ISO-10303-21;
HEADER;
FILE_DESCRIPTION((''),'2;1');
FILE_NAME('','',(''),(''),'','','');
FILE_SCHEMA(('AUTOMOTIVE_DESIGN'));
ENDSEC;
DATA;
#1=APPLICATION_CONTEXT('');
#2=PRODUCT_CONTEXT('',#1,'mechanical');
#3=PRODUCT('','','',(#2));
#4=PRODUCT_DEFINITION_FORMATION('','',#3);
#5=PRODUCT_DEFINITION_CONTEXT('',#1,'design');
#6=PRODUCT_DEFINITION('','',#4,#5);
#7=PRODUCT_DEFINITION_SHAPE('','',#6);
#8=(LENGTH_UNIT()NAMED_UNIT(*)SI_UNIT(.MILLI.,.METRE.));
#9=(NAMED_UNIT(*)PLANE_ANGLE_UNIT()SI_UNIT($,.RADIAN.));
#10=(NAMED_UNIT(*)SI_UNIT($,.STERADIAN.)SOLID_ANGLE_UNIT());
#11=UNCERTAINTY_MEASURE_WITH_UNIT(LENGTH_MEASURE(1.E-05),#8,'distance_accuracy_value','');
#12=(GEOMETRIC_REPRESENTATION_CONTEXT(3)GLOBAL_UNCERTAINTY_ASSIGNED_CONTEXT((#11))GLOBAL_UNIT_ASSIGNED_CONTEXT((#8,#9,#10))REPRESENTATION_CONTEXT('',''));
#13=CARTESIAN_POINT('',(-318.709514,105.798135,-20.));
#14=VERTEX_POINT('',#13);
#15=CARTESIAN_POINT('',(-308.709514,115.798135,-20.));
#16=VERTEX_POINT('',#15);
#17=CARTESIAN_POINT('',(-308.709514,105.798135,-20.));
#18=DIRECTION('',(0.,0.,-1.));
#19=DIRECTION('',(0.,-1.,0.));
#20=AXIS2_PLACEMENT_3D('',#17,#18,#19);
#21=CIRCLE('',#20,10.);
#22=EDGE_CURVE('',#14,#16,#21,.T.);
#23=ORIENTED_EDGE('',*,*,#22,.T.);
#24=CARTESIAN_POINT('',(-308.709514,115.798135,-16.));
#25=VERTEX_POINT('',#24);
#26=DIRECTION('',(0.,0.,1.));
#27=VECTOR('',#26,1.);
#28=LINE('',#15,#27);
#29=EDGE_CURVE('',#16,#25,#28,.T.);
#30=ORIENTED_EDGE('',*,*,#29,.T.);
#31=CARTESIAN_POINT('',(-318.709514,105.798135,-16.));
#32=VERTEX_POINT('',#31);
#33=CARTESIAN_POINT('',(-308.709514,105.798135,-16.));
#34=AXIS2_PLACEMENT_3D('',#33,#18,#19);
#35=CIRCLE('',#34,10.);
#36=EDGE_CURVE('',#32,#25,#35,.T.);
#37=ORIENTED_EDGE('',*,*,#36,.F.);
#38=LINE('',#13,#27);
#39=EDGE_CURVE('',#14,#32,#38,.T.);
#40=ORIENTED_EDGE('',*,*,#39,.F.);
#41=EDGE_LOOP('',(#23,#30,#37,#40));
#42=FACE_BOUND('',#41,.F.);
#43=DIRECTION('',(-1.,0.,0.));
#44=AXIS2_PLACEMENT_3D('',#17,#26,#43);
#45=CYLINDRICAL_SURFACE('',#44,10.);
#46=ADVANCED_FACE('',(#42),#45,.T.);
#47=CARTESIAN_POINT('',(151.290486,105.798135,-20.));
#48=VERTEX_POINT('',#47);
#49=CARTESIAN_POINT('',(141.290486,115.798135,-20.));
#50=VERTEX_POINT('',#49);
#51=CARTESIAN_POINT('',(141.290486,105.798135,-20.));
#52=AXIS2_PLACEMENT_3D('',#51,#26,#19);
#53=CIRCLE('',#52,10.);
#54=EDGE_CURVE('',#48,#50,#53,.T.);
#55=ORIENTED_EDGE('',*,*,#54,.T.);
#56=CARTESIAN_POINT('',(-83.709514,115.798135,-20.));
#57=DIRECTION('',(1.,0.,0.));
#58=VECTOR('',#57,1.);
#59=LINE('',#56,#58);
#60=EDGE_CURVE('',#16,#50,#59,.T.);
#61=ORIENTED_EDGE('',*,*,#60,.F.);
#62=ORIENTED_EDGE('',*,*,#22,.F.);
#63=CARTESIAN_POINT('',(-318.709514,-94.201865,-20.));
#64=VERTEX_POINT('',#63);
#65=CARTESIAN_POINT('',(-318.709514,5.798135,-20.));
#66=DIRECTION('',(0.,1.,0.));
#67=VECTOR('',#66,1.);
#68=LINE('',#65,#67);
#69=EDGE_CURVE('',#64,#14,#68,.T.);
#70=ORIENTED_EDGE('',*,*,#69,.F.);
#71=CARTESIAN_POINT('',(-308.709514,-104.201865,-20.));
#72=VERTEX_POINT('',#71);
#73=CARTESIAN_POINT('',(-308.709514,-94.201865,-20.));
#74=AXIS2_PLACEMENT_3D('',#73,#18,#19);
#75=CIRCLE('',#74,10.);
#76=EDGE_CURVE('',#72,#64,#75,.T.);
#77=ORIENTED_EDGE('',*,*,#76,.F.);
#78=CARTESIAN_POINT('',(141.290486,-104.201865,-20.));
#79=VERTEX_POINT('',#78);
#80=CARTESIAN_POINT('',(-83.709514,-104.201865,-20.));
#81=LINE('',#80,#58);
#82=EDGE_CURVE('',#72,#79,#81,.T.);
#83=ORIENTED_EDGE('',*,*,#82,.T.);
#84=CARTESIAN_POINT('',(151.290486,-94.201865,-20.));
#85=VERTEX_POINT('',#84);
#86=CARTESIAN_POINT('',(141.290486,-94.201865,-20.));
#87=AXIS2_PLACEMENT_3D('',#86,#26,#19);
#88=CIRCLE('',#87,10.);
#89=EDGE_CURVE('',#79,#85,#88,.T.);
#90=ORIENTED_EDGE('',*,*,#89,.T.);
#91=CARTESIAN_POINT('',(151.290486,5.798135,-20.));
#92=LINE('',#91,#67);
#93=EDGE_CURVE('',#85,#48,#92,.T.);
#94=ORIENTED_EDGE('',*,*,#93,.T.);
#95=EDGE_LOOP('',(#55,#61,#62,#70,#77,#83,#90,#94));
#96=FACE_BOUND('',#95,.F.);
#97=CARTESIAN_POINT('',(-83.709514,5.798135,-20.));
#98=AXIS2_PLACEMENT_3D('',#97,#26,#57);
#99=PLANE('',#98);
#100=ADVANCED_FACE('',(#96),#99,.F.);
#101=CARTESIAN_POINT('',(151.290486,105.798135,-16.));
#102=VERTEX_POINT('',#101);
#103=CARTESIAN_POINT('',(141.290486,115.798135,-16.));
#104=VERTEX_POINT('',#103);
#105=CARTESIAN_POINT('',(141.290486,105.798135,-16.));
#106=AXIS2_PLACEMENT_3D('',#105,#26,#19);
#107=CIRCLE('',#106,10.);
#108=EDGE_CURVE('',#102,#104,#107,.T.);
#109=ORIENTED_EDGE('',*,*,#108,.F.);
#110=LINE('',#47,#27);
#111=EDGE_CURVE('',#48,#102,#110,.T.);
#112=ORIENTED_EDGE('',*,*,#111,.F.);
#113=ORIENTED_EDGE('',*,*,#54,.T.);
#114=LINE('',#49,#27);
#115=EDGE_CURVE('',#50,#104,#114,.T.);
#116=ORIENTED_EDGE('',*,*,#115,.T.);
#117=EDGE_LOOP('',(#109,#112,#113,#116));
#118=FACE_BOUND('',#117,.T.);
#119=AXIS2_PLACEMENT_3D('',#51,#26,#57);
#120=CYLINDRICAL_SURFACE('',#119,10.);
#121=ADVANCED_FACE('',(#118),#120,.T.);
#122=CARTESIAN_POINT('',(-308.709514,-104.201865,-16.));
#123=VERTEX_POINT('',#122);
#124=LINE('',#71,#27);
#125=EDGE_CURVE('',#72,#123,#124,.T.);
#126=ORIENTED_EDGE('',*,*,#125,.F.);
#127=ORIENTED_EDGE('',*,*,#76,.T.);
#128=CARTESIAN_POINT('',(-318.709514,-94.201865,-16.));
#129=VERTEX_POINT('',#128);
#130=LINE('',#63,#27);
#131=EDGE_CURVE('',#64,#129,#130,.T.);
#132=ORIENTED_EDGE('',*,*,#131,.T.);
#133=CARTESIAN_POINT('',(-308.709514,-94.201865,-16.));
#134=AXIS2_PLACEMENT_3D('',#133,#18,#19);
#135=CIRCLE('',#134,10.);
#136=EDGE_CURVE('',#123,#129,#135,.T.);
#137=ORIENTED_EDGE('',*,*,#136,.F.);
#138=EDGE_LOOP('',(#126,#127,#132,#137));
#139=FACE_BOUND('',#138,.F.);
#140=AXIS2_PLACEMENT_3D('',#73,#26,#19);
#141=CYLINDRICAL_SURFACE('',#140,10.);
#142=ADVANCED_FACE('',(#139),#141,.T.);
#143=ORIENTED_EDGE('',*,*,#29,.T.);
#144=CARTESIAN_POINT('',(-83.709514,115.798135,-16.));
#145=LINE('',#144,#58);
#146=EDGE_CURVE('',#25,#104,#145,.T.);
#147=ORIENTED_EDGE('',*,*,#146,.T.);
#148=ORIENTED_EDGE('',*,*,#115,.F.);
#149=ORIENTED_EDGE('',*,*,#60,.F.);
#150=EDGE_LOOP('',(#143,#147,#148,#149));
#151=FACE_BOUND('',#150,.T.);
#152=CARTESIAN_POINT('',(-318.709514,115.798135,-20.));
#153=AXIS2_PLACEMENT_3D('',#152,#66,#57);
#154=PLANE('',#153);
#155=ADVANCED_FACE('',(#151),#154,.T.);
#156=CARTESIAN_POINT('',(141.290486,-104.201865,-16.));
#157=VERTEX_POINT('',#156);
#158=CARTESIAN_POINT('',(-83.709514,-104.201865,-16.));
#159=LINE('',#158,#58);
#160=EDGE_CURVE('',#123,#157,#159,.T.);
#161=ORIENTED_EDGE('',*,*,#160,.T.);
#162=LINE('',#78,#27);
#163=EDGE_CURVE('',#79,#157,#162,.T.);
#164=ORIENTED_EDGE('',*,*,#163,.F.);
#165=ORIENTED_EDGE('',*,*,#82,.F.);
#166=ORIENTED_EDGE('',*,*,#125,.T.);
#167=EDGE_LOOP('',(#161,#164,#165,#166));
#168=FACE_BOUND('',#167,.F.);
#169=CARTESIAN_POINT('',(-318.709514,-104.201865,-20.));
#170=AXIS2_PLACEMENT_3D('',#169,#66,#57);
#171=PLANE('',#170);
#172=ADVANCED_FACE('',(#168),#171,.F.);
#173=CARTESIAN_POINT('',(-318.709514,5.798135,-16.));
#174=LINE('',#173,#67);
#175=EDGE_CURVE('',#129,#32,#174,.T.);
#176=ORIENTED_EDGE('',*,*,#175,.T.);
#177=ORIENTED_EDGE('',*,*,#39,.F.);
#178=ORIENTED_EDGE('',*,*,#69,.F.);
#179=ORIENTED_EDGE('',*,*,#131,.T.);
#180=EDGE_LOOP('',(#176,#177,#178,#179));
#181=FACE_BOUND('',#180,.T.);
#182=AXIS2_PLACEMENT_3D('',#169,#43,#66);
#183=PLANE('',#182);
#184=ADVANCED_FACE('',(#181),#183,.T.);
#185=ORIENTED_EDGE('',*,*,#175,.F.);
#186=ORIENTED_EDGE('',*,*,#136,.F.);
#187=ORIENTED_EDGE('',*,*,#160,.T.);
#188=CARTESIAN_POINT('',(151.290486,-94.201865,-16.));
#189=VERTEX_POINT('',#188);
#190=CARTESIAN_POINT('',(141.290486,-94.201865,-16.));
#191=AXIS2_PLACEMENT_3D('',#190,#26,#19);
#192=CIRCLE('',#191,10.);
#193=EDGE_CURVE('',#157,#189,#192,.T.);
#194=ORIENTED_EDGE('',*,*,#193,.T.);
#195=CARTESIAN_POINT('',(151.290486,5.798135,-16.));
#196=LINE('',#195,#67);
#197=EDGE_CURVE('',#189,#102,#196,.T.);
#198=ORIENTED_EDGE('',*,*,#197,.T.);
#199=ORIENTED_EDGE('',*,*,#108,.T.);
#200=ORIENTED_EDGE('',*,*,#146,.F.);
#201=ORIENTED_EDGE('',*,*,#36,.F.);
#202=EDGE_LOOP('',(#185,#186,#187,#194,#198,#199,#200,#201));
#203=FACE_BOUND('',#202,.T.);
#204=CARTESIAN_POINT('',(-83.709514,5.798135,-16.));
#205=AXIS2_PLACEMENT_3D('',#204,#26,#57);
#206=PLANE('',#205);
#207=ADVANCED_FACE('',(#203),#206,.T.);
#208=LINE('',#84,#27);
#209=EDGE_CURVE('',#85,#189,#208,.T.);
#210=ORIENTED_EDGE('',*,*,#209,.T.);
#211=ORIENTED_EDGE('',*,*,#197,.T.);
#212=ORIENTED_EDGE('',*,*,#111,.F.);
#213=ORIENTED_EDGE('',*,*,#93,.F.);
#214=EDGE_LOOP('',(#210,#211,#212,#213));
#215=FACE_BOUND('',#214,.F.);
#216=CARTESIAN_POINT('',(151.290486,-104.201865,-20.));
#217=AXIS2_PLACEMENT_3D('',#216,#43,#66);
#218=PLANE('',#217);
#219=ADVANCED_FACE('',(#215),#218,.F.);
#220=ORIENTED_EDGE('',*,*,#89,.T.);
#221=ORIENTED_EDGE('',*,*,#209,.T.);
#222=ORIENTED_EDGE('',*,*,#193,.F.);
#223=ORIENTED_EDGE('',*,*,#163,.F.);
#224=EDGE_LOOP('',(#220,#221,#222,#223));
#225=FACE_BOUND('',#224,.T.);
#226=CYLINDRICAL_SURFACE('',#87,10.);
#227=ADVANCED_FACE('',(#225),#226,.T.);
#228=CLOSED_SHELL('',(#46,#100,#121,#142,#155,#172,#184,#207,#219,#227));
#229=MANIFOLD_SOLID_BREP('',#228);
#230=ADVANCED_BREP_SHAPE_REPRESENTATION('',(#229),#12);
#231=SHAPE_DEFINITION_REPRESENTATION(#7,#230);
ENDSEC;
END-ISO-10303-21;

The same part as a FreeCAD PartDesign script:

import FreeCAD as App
import Part
import Sketcher
from FreeCAD import Vector


def edges_at(feature, points):
    """Names of the edges that pass closest to the given points."""
    edges = feature.Shape.Edges
    near = lambda p: min(range(len(edges)), key=lambda i: edges[i].distToShape(Part.Vertex(*p))[0])
    return sorted({f"Edge{near(p) + 1}" for p in points})


def add_polygon(sketch, points):
    """Adds a closed chain of lines whose ends are joined by coincident constraints."""
    first, n = sketch.GeometryCount, len(points)
    for a, b in zip(points, points[1:] + points[:1]):
        sketch.addGeometry(Part.LineSegment(App.Vector(*a, 0), App.Vector(*b, 0)), False)
    for i in range(n):
        sketch.addConstraint(Sketcher.Constraint("Coincident", first + i, 2, first + (i + 1) % n, 1))

doc = App.newDocument("Part")
body = doc.addObject("PartDesign::Body", "Body")

# Sketch on XY plane
sketch1 = body.newObject("Sketcher::SketchObject", "Sketch")
sketch1.AttachmentSupport = (doc.getObject("XY_Plane"), [""])
sketch1.MapMode = "FlatFace"
add_polygon(sketch1, [(-122, 116), (-122, -104), (348, -104), (348, 116)])  # lines 0-3
sketch1.addConstraint(Sketcher.Constraint("Vertical", 0))
sketch1.addConstraint(Sketcher.Constraint("Horizontal", 1))
sketch1.addConstraint(Sketcher.Constraint("Vertical", 2))
sketch1.addConstraint(Sketcher.Constraint("Horizontal", 3))
sketch1.addConstraint(Sketcher.Constraint("DistanceX", 1, 1, 1, 2, 470.0))
sketch1.addConstraint(Sketcher.Constraint("DistanceY", 0, 2, 0, 1, 220.0))
sketch1.addConstraint(Sketcher.Constraint("DistanceX", 0, 2, -1, 1, 121.709514))
sketch1.addConstraint(Sketcher.Constraint("DistanceY", 0, 2, -1, 1, 103.701865))
pad1 = body.newObject("PartDesign::Pad", "Pad")
pad1.Profile = sketch1
pad1.Length = 4
doc.recompute()

fillet = body.newObject("PartDesign::Fillet", "Fillet")
fillet.Base = (pad1, edges_at(pad1, [(348.29, -103.702, 2)]))
fillet.Radius = 10
doc.recompute()

fillet2 = body.newObject("PartDesign::Fillet", "Fillet001")
fillet2.Base = (fillet, edges_at(fillet, [(348.29, 116.298, 2)]))
fillet2.Radius = 10
doc.recompute()

fillet3 = body.newObject("PartDesign::Fillet", "Fillet002")
fillet3.Base = (fillet2, edges_at(fillet2, [(-121.71, -103.702, 2)]))
fillet3.Radius = 10
doc.recompute()

fillet4 = body.newObject("PartDesign::Fillet", "Fillet003")
fillet4.Base = (fillet3, edges_at(fillet3, [(-121.71, 116.298, 2)]))
fillet4.Radius = 10
body2 = doc.addObject("PartDesign::Body", "Body001")
doc.recompute()

body.Placement = App.Placement(Vector(-197, -0.5, -20), App.Rotation(Vector(0, 0, 1), 0))
boolean = body2.newObject("PartDesign::Boolean", "Boolean")
boolean.Type = "Fuse"
boolean.addObjects([body])

doc.recompute()
